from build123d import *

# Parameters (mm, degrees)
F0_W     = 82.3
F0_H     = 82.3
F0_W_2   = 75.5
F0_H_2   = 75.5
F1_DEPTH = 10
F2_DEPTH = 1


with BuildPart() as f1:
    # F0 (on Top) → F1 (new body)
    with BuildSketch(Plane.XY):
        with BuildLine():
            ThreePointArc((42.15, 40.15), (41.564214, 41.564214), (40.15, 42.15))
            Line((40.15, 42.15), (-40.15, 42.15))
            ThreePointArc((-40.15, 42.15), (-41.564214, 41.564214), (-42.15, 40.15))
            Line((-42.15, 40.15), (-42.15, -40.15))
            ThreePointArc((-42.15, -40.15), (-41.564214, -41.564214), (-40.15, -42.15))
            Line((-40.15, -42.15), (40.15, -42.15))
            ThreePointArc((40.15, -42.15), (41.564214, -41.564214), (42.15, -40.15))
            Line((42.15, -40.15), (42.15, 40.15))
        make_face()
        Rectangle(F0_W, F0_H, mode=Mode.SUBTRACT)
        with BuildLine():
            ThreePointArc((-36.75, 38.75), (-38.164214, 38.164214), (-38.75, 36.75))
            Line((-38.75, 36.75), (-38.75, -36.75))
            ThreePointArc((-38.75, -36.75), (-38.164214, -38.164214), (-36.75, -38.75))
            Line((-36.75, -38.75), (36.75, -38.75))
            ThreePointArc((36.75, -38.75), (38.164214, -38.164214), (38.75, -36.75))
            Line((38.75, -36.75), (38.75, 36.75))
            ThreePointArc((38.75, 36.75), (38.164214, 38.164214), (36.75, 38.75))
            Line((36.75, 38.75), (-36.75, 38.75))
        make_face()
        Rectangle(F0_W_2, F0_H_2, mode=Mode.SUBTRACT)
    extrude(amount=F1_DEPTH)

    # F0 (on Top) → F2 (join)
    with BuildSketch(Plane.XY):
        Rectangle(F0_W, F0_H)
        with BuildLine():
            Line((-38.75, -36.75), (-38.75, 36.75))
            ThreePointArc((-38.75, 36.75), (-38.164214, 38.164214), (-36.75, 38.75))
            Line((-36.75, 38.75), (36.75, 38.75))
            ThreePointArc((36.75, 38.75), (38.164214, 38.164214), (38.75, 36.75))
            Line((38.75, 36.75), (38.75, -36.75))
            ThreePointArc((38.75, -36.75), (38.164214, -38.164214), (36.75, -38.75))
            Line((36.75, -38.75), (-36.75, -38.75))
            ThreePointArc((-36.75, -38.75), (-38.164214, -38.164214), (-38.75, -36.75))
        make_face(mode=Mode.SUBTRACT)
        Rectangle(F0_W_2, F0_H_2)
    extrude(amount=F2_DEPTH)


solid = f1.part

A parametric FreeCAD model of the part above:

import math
import FreeCAD as App
import Part
import Sketcher

doc = App.newDocument("Part")
params = doc.addObject("Spreadsheet::Sheet", "Params")
for row, (alias, value) in enumerate([
    ("sketch1_radius", "1.999999 mm"),
    ("sketch1_width", "80.3 mm"),
    ("sketch1_width2", "82.3 mm"),
    ("sketch1_width3", "73.5 mm"),
    ("sketch1_width4", "75.5 mm"),
    ("pad1_length", "10 mm"),
    ("sketch2_radius", "1.999999 mm"),
    ("sketch2_width", "82.3 mm"),
    ("sketch2_width2", "73.5 mm"),
    ("sketch2_width3", "75.5 mm"),
    ("pad2_length", "1 mm"),
], start=1):
    params.set(f"A{row}", alias)
    params.set(f"B{row}", "=" + value)
    params.setAlias(f"B{row}", alias)

body = doc.addObject("PartDesign::Body", "Body")
body.AllowCompound = True

# Sketch on XY plane
sketch1 = doc.addObject("Sketcher::SketchObject", "Sketch")
body.addObject(sketch1)
sketch1.AttachmentSupport = (doc.XY_Plane, [""])
sketch1.MapMode = "FlatFace"
sketch1.addGeometry([
    Part.ArcOfCircle(Part.Circle(App.Vector(40.150001, 40.150001, 0), App.Vector(0, 0, 1), 1.999999), math.radians(-0.000043), math.radians(90.000043)),  # 0
    Part.LineSegment(App.Vector(40.15, 42.15, 0), App.Vector(-40.15, 42.15, 0)),  # 1
    Part.ArcOfCircle(Part.Circle(App.Vector(-40.150001, 40.150001, 0), App.Vector(0, 0, 1), 1.999999), math.radians(89.999957), math.radians(180.000043)),  # 2
    Part.LineSegment(App.Vector(-42.15, 40.15, 0), App.Vector(-42.15, -40.15, 0)),  # 3
    Part.ArcOfCircle(Part.Circle(App.Vector(-40.150001, -40.150001, 0), App.Vector(0, 0, 1), 1.999999), math.radians(179.999957), math.radians(270.000043)),  # 4
    Part.LineSegment(App.Vector(-40.15, -42.15, 0), App.Vector(40.15, -42.15, 0)),  # 5
    Part.ArcOfCircle(Part.Circle(App.Vector(40.150001, -40.150001, 0), App.Vector(0, 0, 1), 1.999999), math.radians(-90.000043), math.radians(0.000043)),  # 6
    Part.LineSegment(App.Vector(42.15, -40.15, 0), App.Vector(42.15, 40.15, 0)),  # 7
    Part.LineSegment(App.Vector(41.15, -41.15, 0), App.Vector(-41.15, -41.15, 0)),  # 8
    Part.LineSegment(App.Vector(-41.15, -41.15, 0), App.Vector(-41.15, 41.15, 0)),  # 9
    Part.LineSegment(App.Vector(-41.15, 41.15, 0), App.Vector(41.15, 41.15, 0)),  # 10
    Part.LineSegment(App.Vector(41.15, 41.15, 0), App.Vector(41.15, -41.15, 0)),  # 11
    Part.ArcOfCircle(Part.Circle(App.Vector(-36.750001, 36.750001, 0), App.Vector(0, 0, 1), 1.999999), math.radians(89.999957), math.radians(180.000043)),  # 12
    Part.LineSegment(App.Vector(-38.75, 36.75, 0), App.Vector(-38.75, -36.75, 0)),  # 13
    Part.ArcOfCircle(Part.Circle(App.Vector(-36.750001, -36.750001, 0), App.Vector(0, 0, 1), 1.999999), math.radians(179.999957), math.radians(270.000043)),  # 14
    Part.LineSegment(App.Vector(-36.75, -38.75, 0), App.Vector(36.75, -38.75, 0)),  # 15
    Part.ArcOfCircle(Part.Circle(App.Vector(36.750001, -36.750001, 0), App.Vector(0, 0, 1), 1.999999), math.radians(-90.000043), math.radians(0.000043)),  # 16
    Part.LineSegment(App.Vector(38.75, -36.75, 0), App.Vector(38.75, 36.75, 0)),  # 17
    Part.ArcOfCircle(Part.Circle(App.Vector(36.750001, 36.750001, 0), App.Vector(0, 0, 1), 1.999999), math.radians(-0.000043), math.radians(90.000043)),  # 18
    Part.LineSegment(App.Vector(36.75, 38.75, 0), App.Vector(-36.75, 38.75, 0)),  # 19
    Part.LineSegment(App.Vector(37.75, -37.75, 0), App.Vector(-37.75, -37.75, 0)),  # 20
    Part.LineSegment(App.Vector(-37.75, -37.75, 0), App.Vector(-37.75, 37.75, 0)),  # 21
    Part.LineSegment(App.Vector(-37.75, 37.75, 0), App.Vector(37.75, 37.75, 0)),  # 22
    Part.LineSegment(App.Vector(37.75, 37.75, 0), App.Vector(37.75, -37.75, 0)),  # 23
], False)
sketch1.addConstraint([
    Sketcher.Constraint("Tangent", 0, 2, 1, 1),
    Sketcher.Constraint("Tangent", 1, 2, 2, 1),
    Sketcher.Constraint("Tangent", 2, 2, 3, 1),
    Sketcher.Constraint("Tangent", 3, 2, 4, 1),
    Sketcher.Constraint("Tangent", 4, 2, 5, 1),
    Sketcher.Constraint("Tangent", 5, 2, 6, 1),
    Sketcher.Constraint("Tangent", 6, 2, 7, 1),
    Sketcher.Constraint("Tangent", 7, 2, 0, 1),
    Sketcher.Constraint("Coincident", 8, 2, 9, 1),
    Sketcher.Constraint("Coincident", 9, 2, 10, 1),
    Sketcher.Constraint("Coincident", 10, 2, 11, 1),
    Sketcher.Constraint("Coincident", 11, 2, 8, 1),
    Sketcher.Constraint("Tangent", 12, 2, 13, 1),
    Sketcher.Constraint("Tangent", 13, 2, 14, 1),
    Sketcher.Constraint("Tangent", 14, 2, 15, 1),
    Sketcher.Constraint("Tangent", 15, 2, 16, 1),
    Sketcher.Constraint("Tangent", 16, 2, 17, 1),
    Sketcher.Constraint("Tangent", 17, 2, 18, 1),
    Sketcher.Constraint("Tangent", 18, 2, 19, 1),
    Sketcher.Constraint("Tangent", 19, 2, 12, 1),
    Sketcher.Constraint("Coincident", 20, 2, 21, 1),
    Sketcher.Constraint("Coincident", 21, 2, 22, 1),
    Sketcher.Constraint("Coincident", 22, 2, 23, 1),
    Sketcher.Constraint("Coincident", 23, 2, 20, 1),
    Sketcher.Constraint("Horizontal", 1),
    Sketcher.Constraint("Vertical", 3),
    Sketcher.Constraint("Horizontal", 5),
    Sketcher.Constraint("Vertical", 7),
    Sketcher.Constraint("Horizontal", 8),
    Sketcher.Constraint("Vertical", 9),
    Sketcher.Constraint("Horizontal", 10),
    Sketcher.Constraint("Vertical", 11),
    Sketcher.Constraint("Vertical", 13),
    Sketcher.Constraint("Horizontal", 15),
    Sketcher.Constraint("Vertical", 17),
    Sketcher.Constraint("Horizontal", 19),
    Sketcher.Constraint("Horizontal", 20),
    Sketcher.Constraint("Vertical", 21),
    Sketcher.Constraint("Horizontal", 22),
    Sketcher.Constraint("Vertical", 23),
    Sketcher.Constraint("Equal", 0, 2),
    Sketcher.Constraint("Equal", 2, 4),
    Sketcher.Constraint("Equal", 4, 6),
    Sketcher.Constraint("Equal", 6, 12),
    Sketcher.Constraint("Equal", 12, 14),
    Sketcher.Constraint("Equal", 14, 16),
    Sketcher.Constraint("Equal", 16, 18),
    Sketcher.Constraint("Symmetric", 0, 3, 4, 3, -1, 1),
    Sketcher.Constraint("Symmetric", 12, 3, 16, 3, -1, 1),
    Sketcher.Constraint("Symmetric", 8, 2, 10, 2, -1, 1),
    Sketcher.Constraint("Symmetric", 20, 2, 22, 2, -1, 1),
    Sketcher.Constraint("Equal", 5, 3),
    Sketcher.Constraint("Equal", 10, 9),
    Sketcher.Constraint("Equal", 19, 13),
    Sketcher.Constraint("Equal", 22, 21),
    Sketcher.Constraint("Radius", 0, 1.999999),
    Sketcher.Constraint("DistanceX", 1, 2, 1, 1, 80.3),
    Sketcher.Constraint("DistanceX", 8, 2, 8, 1, 82.3),
    Sketcher.Constraint("DistanceX", 15, 1, 15, 2, 73.5),
    Sketcher.Constraint("DistanceX", 20, 2, 20, 1, 75.5),
])
sketch1.setExpression("Constraints[55]", "Params.sketch1_radius")
sketch1.setExpression("Constraints[56]", "Params.sketch1_width")
sketch1.setExpression("Constraints[57]", "Params.sketch1_width2")
sketch1.setExpression("Constraints[58]", "Params.sketch1_width3")
sketch1.setExpression("Constraints[59]", "Params.sketch1_width4")
pad1 = doc.addObject("PartDesign::Pad", "Pad")
body.addObject(pad1)
pad1.Profile = sketch1
pad1.setExpression("Length", "Params.pad1_length")

# Sketch on XY plane
sketch2 = doc.addObject("Sketcher::SketchObject", "Sketch001")
body.addObject(sketch2)
sketch2.AttachmentSupport = (doc.XY_Plane, [""])
sketch2.MapMode = "FlatFace"
sketch2.addGeometry([
    Part.LineSegment(App.Vector(-41.15, 41.15, 0), App.Vector(-41.15, -41.15, 0)),  # 0
    Part.LineSegment(App.Vector(-41.15, -41.15, 0), App.Vector(41.15, -41.15, 0)),  # 1
    Part.LineSegment(App.Vector(41.15, -41.15, 0), App.Vector(41.15, 41.15, 0)),  # 2
    Part.LineSegment(App.Vector(41.15, 41.15, 0), App.Vector(-41.15, 41.15, 0)),  # 3
    Part.ArcOfCircle(Part.Circle(App.Vector(-36.750001, -36.750001, 0), App.Vector(0, 0, 1), 1.999999), math.radians(179.999957), math.radians(270.000043)),  # 4
    Part.LineSegment(App.Vector(-38.75, -36.75, 0), App.Vector(-38.75, 36.75, 0)),  # 5
    Part.ArcOfCircle(Part.Circle(App.Vector(-36.750001, 36.750001, 0), App.Vector(0, 0, 1), 1.999999), math.radians(89.999957), math.radians(180.000043)),  # 6
    Part.LineSegment(App.Vector(-36.75, 38.75, 0), App.Vector(36.75, 38.75, 0)),  # 7
    Part.ArcOfCircle(Part.Circle(App.Vector(36.750001, 36.750001, 0), App.Vector(0, 0, 1), 1.999999), math.radians(-0.000043), math.radians(90.000043)),  # 8
    Part.LineSegment(App.Vector(38.75, 36.75, 0), App.Vector(38.75, -36.75, 0)),  # 9
    Part.ArcOfCircle(Part.Circle(App.Vector(36.750001, -36.750001, 0), App.Vector(0, 0, 1), 1.999999), math.radians(-90.000043), math.radians(0.000043)),  # 10
    Part.LineSegment(App.Vector(36.75, -38.75, 0), App.Vector(-36.75, -38.75, 0)),  # 11
    Part.LineSegment(App.Vector(-37.75, 37.75, 0), App.Vector(-37.75, -37.75, 0)),  # 12
    Part.LineSegment(App.Vector(-37.75, -37.75, 0), App.Vector(37.75, -37.75, 0)),  # 13
    Part.LineSegment(App.Vector(37.75, -37.75, 0), App.Vector(37.75, 37.75, 0)),  # 14
    Part.LineSegment(App.Vector(37.75, 37.75, 0), App.Vector(-37.75, 37.75, 0)),  # 15
], False)
sketch2.addConstraint([
    Sketcher.Constraint("Coincident", 0, 2, 1, 1),
    Sketcher.Constraint("Coincident", 1, 2, 2, 1),
    Sketcher.Constraint("Coincident", 2, 2, 3, 1),
    Sketcher.Constraint("Coincident", 3, 2, 0, 1),
    Sketcher.Constraint("Tangent", 4, 1, 5, 1),
    Sketcher.Constraint("Tangent", 5, 2, 6, 2),
    Sketcher.Constraint("Tangent", 6, 1, 7, 1),
    Sketcher.Constraint("Tangent", 7, 2, 8, 2),
    Sketcher.Constraint("Tangent", 8, 1, 9, 1),
    Sketcher.Constraint("Tangent", 9, 2, 10, 2),
    Sketcher.Constraint("Tangent", 10, 1, 11, 1),
    Sketcher.Constraint("Tangent", 11, 2, 4, 2),
    Sketcher.Constraint("Coincident", 12, 2, 13, 1),
    Sketcher.Constraint("Coincident", 13, 2, 14, 1),
    Sketcher.Constraint("Coincident", 14, 2, 15, 1),
    Sketcher.Constraint("Coincident", 15, 2, 12, 1),
    Sketcher.Constraint("Vertical", 0),
    Sketcher.Constraint("Horizontal", 1),
    Sketcher.Constraint("Vertical", 2),
    Sketcher.Constraint("Horizontal", 3),
    Sketcher.Constraint("Vertical", 5),
    Sketcher.Constraint("Horizontal", 7),
    Sketcher.Constraint("Vertical", 9),
    Sketcher.Constraint("Horizontal", 11),
    Sketcher.Constraint("Vertical", 12),
    Sketcher.Constraint("Horizontal", 13),
    Sketcher.Constraint("Vertical", 14),
    Sketcher.Constraint("Horizontal", 15),
    Sketcher.Constraint("Equal", 4, 6),
    Sketcher.Constraint("Equal", 6, 8),
    Sketcher.Constraint("Equal", 8, 10),
    Sketcher.Constraint("Symmetric", 4, 3, 8, 3, -1, 1),
    Sketcher.Constraint("Symmetric", 0, 2, 2, 2, -1, 1),
    Sketcher.Constraint("Symmetric", 12, 2, 14, 2, -1, 1),
    Sketcher.Constraint("Equal", 3, 0),
    Sketcher.Constraint("Equal", 11, 5),
    Sketcher.Constraint("Equal", 15, 12),
    Sketcher.Constraint("Radius", 4, 1.999999),
    Sketcher.Constraint("DistanceX", 1, 1, 1, 2, 82.3),
    Sketcher.Constraint("DistanceX", 7, 1, 7, 2, 73.5),
    Sketcher.Constraint("DistanceX", 13, 1, 13, 2, 75.5),
])
sketch2.setExpression("Constraints[37]", "Params.sketch2_radius")
sketch2.setExpression("Constraints[38]", "Params.sketch2_width")
sketch2.setExpression("Constraints[39]", "Params.sketch2_width2")
sketch2.setExpression("Constraints[40]", "Params.sketch2_width3")
pad2 = doc.addObject("PartDesign::Pad", "Pad001")
body.addObject(pad2)
pad2.Profile = sketch2
pad2.setExpression("Length", "Params.pad2_length")

doc.recompute()
